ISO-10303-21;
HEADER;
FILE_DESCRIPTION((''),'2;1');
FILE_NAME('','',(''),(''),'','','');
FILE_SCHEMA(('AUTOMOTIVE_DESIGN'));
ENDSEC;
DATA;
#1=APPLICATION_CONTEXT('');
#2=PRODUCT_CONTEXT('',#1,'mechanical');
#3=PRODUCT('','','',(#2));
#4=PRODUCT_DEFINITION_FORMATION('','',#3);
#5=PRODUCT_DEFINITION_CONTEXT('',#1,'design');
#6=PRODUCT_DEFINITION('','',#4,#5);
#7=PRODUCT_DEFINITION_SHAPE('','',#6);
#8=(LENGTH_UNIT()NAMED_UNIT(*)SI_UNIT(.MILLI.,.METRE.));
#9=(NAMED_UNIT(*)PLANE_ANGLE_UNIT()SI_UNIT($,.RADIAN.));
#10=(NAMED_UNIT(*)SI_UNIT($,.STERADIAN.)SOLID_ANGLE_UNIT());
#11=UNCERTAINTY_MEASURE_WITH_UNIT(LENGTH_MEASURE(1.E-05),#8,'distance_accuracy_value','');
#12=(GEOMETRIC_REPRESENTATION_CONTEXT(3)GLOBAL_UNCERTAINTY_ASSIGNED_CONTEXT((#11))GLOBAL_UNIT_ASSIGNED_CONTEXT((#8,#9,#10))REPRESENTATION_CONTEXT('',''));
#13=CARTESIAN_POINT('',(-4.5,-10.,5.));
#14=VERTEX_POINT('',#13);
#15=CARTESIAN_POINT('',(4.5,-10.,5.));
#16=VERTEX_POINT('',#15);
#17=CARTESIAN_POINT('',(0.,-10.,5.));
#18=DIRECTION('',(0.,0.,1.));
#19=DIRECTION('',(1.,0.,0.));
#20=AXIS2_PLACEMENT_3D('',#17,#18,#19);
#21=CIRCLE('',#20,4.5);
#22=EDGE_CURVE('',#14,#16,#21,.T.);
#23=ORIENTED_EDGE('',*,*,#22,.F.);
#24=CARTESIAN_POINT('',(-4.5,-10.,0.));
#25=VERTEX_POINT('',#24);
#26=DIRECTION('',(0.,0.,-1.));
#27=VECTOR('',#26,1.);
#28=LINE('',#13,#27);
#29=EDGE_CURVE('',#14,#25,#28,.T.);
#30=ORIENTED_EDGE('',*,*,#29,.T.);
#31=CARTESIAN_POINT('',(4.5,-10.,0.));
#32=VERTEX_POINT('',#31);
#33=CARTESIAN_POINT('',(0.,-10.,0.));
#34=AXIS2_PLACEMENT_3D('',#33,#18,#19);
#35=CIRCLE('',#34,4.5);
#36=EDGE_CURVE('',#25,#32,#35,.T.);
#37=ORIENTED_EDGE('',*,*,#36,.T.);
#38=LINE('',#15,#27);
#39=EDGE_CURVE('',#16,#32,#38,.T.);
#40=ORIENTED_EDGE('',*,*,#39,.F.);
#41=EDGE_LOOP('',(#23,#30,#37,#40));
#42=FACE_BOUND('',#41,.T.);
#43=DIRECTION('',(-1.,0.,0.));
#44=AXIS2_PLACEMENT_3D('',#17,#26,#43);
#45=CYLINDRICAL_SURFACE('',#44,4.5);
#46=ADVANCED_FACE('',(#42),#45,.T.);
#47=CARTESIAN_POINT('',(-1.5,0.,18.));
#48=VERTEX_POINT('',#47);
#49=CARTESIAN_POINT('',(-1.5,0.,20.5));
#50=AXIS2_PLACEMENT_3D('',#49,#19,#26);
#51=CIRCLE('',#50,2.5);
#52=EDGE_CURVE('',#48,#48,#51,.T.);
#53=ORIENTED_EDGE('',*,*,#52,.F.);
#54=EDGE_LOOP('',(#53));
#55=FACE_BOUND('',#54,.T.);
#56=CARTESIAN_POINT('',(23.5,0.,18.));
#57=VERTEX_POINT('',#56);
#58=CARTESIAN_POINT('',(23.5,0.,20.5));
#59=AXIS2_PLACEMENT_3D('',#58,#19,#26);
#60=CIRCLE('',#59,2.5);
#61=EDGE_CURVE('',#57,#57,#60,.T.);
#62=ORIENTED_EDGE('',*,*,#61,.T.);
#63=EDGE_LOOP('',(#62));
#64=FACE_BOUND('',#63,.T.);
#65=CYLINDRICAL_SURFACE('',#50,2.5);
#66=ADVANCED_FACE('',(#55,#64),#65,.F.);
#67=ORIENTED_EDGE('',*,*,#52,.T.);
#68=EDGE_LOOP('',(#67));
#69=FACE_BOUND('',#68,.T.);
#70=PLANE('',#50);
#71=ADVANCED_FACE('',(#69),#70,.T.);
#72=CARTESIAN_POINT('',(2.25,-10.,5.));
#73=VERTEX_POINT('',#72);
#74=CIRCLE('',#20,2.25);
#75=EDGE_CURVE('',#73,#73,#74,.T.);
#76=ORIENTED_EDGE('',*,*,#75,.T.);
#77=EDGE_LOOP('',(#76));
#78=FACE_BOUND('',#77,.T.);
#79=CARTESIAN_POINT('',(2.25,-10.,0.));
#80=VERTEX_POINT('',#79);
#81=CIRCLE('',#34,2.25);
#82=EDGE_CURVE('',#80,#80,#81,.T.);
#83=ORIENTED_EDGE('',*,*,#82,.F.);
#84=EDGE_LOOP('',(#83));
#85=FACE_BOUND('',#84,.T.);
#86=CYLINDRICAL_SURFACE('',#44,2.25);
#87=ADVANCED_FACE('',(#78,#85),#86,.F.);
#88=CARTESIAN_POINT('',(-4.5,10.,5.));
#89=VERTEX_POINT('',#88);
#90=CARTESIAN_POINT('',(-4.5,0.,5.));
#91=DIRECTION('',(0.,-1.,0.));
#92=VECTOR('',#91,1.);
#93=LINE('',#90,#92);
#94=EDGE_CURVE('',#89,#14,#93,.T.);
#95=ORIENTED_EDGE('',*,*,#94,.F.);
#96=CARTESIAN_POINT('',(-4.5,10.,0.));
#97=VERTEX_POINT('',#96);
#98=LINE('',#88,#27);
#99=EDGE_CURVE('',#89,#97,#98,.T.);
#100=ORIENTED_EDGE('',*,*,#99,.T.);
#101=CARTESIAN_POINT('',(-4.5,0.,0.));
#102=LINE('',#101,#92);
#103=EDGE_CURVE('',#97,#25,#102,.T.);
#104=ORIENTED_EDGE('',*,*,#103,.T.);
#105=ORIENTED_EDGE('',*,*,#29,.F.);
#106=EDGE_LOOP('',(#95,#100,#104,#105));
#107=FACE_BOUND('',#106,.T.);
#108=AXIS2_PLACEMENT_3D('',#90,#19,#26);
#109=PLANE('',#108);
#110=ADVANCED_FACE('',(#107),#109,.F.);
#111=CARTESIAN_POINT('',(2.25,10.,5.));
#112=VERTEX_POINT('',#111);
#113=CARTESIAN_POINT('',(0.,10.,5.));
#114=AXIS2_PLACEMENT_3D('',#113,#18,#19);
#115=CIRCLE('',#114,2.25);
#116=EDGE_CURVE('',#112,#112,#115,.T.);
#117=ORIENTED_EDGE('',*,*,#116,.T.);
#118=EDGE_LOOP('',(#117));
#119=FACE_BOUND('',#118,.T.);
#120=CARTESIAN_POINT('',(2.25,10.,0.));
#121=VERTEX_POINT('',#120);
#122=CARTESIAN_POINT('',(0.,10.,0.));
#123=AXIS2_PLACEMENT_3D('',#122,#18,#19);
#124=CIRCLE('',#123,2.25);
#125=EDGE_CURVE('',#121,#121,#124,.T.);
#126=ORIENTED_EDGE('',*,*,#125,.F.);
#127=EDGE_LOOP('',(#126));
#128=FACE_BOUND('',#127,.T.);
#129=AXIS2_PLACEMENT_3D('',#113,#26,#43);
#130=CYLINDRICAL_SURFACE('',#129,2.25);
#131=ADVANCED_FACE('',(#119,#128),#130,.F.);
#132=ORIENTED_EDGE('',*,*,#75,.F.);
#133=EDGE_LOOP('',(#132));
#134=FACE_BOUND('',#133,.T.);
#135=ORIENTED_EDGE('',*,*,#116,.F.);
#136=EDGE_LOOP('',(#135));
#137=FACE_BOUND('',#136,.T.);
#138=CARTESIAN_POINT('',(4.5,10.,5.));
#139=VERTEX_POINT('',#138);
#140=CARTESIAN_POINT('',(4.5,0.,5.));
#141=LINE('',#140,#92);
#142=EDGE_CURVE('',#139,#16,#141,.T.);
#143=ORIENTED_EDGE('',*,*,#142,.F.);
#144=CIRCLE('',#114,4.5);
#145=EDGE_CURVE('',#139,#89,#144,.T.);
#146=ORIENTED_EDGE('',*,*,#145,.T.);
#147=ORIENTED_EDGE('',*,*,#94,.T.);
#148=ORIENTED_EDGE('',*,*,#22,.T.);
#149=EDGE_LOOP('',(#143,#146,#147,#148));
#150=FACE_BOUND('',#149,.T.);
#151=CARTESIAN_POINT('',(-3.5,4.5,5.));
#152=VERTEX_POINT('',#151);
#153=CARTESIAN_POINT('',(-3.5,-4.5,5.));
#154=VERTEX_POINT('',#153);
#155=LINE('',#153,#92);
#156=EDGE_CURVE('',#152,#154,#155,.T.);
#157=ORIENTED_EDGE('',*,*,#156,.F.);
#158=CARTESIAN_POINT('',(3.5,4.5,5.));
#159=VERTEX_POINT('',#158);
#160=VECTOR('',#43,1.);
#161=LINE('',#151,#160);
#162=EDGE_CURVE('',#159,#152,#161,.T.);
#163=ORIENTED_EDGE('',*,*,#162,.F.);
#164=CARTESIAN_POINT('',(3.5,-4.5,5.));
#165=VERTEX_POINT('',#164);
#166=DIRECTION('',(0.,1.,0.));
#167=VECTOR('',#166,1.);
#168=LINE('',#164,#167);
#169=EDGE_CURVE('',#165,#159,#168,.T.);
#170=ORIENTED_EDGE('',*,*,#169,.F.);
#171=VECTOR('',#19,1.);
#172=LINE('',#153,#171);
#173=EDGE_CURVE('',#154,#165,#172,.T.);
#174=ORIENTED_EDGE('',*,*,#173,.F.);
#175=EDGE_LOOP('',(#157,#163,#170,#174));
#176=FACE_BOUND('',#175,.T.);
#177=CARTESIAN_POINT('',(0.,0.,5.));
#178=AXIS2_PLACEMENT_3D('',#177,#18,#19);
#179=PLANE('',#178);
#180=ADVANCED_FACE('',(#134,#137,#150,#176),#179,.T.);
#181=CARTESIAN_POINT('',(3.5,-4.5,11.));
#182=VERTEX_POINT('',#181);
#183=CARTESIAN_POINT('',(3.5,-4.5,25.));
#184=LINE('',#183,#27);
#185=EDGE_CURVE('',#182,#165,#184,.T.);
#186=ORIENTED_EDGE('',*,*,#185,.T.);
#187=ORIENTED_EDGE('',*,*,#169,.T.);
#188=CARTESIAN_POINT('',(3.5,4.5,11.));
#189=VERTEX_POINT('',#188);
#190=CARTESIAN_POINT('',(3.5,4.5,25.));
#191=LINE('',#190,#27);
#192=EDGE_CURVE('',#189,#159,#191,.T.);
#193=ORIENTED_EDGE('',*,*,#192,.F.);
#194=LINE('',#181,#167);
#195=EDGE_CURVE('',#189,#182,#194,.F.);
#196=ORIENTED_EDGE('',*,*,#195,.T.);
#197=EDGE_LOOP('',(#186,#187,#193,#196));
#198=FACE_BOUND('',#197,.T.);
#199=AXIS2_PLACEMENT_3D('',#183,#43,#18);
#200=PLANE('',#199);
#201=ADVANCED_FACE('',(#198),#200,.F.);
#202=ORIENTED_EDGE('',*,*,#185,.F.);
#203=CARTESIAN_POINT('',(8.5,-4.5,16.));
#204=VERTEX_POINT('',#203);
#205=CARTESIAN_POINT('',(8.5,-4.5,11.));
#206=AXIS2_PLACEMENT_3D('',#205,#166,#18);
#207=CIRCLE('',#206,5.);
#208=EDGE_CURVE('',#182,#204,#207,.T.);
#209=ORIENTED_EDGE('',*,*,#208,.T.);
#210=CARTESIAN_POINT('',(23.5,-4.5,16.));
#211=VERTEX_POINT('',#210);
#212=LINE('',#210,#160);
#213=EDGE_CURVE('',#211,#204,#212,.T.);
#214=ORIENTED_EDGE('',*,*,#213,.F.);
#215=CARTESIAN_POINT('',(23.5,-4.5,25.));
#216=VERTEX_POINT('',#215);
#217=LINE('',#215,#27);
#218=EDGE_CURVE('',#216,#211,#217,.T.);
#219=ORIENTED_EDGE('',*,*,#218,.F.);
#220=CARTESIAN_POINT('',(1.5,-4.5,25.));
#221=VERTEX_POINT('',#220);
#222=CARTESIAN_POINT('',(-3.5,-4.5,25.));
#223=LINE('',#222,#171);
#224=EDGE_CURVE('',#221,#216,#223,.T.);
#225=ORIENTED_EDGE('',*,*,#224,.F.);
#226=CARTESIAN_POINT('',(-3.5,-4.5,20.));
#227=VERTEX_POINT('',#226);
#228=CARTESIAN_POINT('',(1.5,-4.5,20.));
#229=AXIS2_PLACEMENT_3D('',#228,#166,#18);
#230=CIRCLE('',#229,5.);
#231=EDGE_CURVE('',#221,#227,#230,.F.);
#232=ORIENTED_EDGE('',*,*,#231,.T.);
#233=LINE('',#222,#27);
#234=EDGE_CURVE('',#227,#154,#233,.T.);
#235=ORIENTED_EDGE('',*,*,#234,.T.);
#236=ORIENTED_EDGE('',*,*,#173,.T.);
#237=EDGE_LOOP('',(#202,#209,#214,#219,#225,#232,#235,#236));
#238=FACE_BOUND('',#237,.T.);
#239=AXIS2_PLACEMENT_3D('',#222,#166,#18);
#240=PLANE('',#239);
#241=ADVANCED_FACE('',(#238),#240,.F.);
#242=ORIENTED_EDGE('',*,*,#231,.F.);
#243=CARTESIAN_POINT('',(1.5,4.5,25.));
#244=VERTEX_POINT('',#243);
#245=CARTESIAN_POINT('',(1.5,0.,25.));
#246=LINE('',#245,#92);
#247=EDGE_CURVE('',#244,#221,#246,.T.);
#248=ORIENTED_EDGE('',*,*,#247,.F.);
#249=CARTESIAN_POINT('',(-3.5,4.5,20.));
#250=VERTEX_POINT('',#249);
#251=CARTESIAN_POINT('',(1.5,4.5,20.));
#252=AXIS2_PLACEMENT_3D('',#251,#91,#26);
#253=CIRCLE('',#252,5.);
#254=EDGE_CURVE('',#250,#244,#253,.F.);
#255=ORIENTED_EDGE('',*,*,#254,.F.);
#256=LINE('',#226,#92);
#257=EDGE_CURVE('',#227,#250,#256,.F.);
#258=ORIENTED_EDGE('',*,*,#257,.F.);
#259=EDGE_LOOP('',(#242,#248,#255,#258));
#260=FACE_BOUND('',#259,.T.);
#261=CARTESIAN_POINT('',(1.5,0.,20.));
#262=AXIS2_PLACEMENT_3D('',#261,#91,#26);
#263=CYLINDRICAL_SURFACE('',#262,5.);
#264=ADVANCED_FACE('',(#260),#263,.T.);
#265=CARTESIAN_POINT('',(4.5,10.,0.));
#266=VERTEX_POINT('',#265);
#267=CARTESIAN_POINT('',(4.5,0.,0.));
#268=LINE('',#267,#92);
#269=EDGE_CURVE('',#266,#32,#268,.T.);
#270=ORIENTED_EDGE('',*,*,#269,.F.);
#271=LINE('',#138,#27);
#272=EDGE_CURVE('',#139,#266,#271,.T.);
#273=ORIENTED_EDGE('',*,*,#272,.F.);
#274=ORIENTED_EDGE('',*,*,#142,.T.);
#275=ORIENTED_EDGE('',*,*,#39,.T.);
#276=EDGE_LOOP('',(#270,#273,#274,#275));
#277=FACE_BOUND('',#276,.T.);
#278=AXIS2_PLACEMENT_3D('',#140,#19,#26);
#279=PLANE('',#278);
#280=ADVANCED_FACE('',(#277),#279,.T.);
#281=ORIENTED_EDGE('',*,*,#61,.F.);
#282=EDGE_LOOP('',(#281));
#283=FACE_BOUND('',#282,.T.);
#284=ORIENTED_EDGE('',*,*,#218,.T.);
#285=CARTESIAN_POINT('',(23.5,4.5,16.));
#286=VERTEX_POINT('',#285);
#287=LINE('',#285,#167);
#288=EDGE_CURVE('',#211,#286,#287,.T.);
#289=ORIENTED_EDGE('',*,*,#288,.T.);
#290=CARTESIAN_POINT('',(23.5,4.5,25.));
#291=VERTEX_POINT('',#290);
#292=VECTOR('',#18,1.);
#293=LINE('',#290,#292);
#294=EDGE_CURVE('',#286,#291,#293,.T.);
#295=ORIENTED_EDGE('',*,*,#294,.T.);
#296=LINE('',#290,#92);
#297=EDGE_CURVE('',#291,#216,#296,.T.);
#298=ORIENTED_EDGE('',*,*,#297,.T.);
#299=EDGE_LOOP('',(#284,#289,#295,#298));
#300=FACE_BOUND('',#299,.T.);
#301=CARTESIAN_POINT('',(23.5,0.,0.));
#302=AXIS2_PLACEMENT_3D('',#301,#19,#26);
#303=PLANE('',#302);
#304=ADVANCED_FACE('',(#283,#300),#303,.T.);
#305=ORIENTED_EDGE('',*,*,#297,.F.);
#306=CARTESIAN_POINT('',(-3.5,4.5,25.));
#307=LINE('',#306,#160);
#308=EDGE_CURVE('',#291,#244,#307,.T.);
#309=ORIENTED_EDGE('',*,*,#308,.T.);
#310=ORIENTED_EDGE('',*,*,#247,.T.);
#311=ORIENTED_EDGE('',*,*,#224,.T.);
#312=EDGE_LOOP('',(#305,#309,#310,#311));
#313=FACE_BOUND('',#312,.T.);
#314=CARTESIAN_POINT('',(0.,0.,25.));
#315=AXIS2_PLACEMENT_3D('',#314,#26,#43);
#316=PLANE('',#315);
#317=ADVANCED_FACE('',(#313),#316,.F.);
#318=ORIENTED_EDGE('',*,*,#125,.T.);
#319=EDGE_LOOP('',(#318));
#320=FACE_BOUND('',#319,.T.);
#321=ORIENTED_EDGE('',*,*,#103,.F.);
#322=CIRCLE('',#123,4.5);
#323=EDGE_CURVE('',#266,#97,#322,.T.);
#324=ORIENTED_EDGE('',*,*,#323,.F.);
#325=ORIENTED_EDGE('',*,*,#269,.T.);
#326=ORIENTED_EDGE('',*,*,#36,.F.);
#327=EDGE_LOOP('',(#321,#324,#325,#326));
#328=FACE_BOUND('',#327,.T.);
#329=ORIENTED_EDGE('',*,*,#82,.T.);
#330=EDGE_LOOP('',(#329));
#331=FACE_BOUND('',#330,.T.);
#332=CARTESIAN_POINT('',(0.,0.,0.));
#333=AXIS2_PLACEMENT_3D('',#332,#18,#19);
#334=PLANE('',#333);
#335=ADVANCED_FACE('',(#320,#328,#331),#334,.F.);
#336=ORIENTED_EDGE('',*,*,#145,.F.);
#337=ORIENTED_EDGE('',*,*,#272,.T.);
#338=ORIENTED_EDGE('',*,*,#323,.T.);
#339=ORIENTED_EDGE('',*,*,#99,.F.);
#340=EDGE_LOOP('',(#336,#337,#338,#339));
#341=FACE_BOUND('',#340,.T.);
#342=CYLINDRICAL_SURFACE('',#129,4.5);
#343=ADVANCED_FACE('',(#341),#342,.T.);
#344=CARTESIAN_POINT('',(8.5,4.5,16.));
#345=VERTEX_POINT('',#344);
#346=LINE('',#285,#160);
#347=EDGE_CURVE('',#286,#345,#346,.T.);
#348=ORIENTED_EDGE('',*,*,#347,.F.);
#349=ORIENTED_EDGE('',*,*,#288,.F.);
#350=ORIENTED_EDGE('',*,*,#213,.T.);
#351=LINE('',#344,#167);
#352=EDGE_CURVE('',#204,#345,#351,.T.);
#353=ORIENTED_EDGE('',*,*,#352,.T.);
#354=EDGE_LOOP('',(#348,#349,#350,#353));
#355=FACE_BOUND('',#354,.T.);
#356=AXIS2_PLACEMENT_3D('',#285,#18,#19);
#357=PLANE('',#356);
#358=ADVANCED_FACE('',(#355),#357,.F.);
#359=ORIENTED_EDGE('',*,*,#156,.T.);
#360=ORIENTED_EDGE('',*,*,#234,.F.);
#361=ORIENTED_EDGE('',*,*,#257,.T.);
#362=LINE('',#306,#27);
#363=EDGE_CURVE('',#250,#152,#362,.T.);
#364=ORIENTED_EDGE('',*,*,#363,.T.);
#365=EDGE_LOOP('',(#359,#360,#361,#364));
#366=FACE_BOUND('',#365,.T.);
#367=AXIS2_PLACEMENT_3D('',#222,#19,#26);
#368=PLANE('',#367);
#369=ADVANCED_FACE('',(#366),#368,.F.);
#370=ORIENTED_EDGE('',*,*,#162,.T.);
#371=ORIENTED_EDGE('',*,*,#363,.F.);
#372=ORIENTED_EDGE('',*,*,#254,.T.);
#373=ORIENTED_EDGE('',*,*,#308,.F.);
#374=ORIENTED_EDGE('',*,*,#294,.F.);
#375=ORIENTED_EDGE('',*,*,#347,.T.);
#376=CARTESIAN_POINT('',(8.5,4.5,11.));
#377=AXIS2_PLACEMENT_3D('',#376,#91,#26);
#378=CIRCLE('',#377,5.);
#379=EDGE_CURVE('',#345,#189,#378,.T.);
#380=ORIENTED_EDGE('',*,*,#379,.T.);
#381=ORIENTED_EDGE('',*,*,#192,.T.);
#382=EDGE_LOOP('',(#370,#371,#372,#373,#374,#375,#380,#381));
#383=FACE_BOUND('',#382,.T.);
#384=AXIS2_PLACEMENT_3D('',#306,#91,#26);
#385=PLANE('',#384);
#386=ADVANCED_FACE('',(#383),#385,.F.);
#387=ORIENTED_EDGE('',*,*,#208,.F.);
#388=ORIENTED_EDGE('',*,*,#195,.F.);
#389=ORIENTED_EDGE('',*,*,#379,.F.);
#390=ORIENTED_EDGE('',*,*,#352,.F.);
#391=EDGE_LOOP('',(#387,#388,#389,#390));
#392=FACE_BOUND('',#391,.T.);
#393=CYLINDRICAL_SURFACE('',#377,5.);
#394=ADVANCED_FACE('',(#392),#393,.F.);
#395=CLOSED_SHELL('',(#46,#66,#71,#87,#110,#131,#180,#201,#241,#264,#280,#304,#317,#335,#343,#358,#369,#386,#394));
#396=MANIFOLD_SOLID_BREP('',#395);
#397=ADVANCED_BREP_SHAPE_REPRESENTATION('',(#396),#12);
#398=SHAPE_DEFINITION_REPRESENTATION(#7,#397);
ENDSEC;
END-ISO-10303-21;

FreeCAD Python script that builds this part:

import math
import FreeCAD as App
import Part
import Sketcher
Q = App.Units.Quantity


def edges_at(feature, points):
    """Names of the edges that pass closest to the given points."""
    edges = feature.Shape.Edges
    near = lambda p: min(range(len(edges)), key=lambda i: edges[i].distToShape(Part.Vertex(*p))[0])
    return sorted({f"Edge{near(p) + 1}" for p in points})

doc = App.newDocument("Part")
body = doc.addObject("PartDesign::Body", "Body")

sketch1 = doc.addObject("Sketcher::SketchObject", "Sketch")
body.addObject(sketch1)
sketch1.AttachmentSupport = (doc.XY_Plane, [""])
sketch1.MapMode = "FlatFace"
sketch1.addGeometry(Part.ArcOfCircle(Part.Circle(App.Vector(0, 10, 0), App.Vector(0, 0, 1), 4.5), math.radians(0), math.radians(180)), False)
sketch1.addGeometry(Part.LineSegment(App.Vector(-4.5, 10, 0), App.Vector(-4.5, -10, 0)), False)
sketch1.addGeometry(Part.ArcOfCircle(Part.Circle(App.Vector(0, -10, 0), App.Vector(0, 0, 1), 4.5), math.radians(180), math.radians(360)), False)
sketch1.addGeometry(Part.LineSegment(App.Vector(4.5, -10, 0), App.Vector(4.5, 10, 0)), False)
sketch1.addGeometry(Part.Circle(App.Vector(0, -10, 0), App.Vector(0, 0, 1), 2.25), False)
sketch1.addGeometry(Part.Circle(App.Vector(0, 10, 0), App.Vector(0, 0, 1), 2.25), False)
sketch1.addConstraint(Sketcher.Constraint("Tangent", 0, 2, 1, 1))
sketch1.addConstraint(Sketcher.Constraint("Tangent", 1, 2, 2, 1))
sketch1.addConstraint(Sketcher.Constraint("Tangent", 2, 2, 3, 1))
sketch1.addConstraint(Sketcher.Constraint("Tangent", 3, 2, 0, 1))
sketch1.addConstraint(Sketcher.Constraint("Vertical", 1))
sketch1.addConstraint(Sketcher.Constraint("Vertical", 3))
sketch1.addConstraint(Sketcher.Constraint("Coincident", 4, 3, 2, 3))
sketch1.addConstraint(Sketcher.Constraint("Coincident", 5, 3, 0, 3))
sketch1.addConstraint(Sketcher.Constraint("Equal", 4, 5))
sketch1.addConstraint(Sketcher.Constraint("Symmetric", 0, 3, 2, 3, -1, 1))
sketch1.addConstraint(Sketcher.Constraint("Diameter", 4, Q("4.5 mm")))
sketch1.addConstraint(Sketcher.Constraint("Radius", 0, Q("4.5 mm")))
sketch1.addConstraint(Sketcher.Constraint("DistanceY", 1, 2, 1, 1, Q("20 mm")))
pad1 = doc.addObject("PartDesign::Pad", "Pad")
body.addObject(pad1)
pad1.Profile = sketch1
pad1.Length = 5

sketch2 = doc.addObject("Sketcher::SketchObject", "Sketch001")
body.addObject(sketch2)
sketch2.AttachmentSupport = (doc.XY_Plane, [""])
sketch2.MapMode = "FlatFace"
sketch2.AttachmentOffset = App.Placement(App.Vector(0, 0, 5), App.Rotation())
sketch2.addGeometry(Part.LineSegment(App.Vector(-3.5, 4.5, 0), App.Vector(-3.5, -4.5, 0)), False)
sketch2.addGeometry(Part.LineSegment(App.Vector(-3.5, -4.5, 0), App.Vector(3.5, -4.5, 0)), False)
sketch2.addGeometry(Part.LineSegment(App.Vector(3.5, -4.5, 0), App.Vector(3.5, 4.5, 0)), False)
sketch2.addGeometry(Part.LineSegment(App.Vector(3.5, 4.5, 0), App.Vector(-3.5, 4.5, 0)), False)
sketch2.addConstraint(Sketcher.Constraint("Coincident", 0, 2, 1, 1))
sketch2.addConstraint(Sketcher.Constraint("Coincident", 1, 2, 2, 1))
sketch2.addConstraint(Sketcher.Constraint("Coincident", 2, 2, 3, 1))
sketch2.addConstraint(Sketcher.Constraint("Coincident", 3, 2, 0, 1))
sketch2.addConstraint(Sketcher.Constraint("Vertical", 0))
sketch2.addConstraint(Sketcher.Constraint("Horizontal", 1))
sketch2.addConstraint(Sketcher.Constraint("Vertical", 2))
sketch2.addConstraint(Sketcher.Constraint("Horizontal", 3))
sketch2.addConstraint(Sketcher.Constraint("Symmetric", 0, 2, 2, 2, -1, 1))
sketch2.addConstraint(Sketcher.Constraint("DistanceX", 1, 1, 1, 2, Q("7 mm")))
sketch2.addConstraint(Sketcher.Constraint("DistanceY", 0, 2, 0, 1, Q("9 mm")))
pad2 = doc.addObject("PartDesign::Pad", "Pad001")
body.addObject(pad2)
pad2.Profile = sketch2
pad2.Length = 20

sketch3 = doc.addObject("Sketcher::SketchObject", "Sketch002")
body.addObject(sketch3)
sketch3.AttachmentSupport = (doc.YZ_Plane, [""])
sketch3.MapMode = "FlatFace"
sketch3.AttachmentOffset = App.Placement(App.Vector(0, 0, 3.5), App.Rotation())
sketch3.addGeometry(Part.LineSegment(App.Vector(4.5, 25, 0), App.Vector(-4.5, 25, 0)), False)
sketch3.addGeometry(Part.LineSegment(App.Vector(-4.5, 25, 0), App.Vector(-4.5, 16, 0)), False)
sketch3.addGeometry(Part.LineSegment(App.Vector(-4.5, 16, 0), App.Vector(4.5, 16, 0)), False)
sketch3.addGeometry(Part.LineSegment(App.Vector(4.5, 16, 0), App.Vector(4.5, 25, 0)), False)
sketch3.addConstraint(Sketcher.Constraint("Coincident", 0, 2, 1, 1))
sketch3.addConstraint(Sketcher.Constraint("Coincident", 1, 2, 2, 1))
sketch3.addConstraint(Sketcher.Constraint("Coincident", 2, 2, 3, 1))
sketch3.addConstraint(Sketcher.Constraint("Coincident", 3, 2, 0, 1))
sketch3.addConstraint(Sketcher.Constraint("Horizontal", 0))
sketch3.addConstraint(Sketcher.Constraint("Vertical", 1))
sketch3.addConstraint(Sketcher.Constraint("Horizontal", 2))
sketch3.addConstraint(Sketcher.Constraint("Vertical", 3))
sketch3.addConstraint(Sketcher.Constraint("Equal", 2, 1))
sketch3.addConstraint(Sketcher.Constraint("DistanceX", 0, 2, 0, 1, Q("9 mm")))
sketch3.addConstraint(Sketcher.Constraint("DistanceY", -1, 1, 0, 2, Q("25 mm")))
sketch3.addConstraint(Sketcher.Constraint("DistanceX", 0, 2, -1, 1, Q("4.5 mm")))
pad3 = doc.addObject("PartDesign::Pad", "Pad002")
body.addObject(pad3)
pad3.Profile = sketch3
pad3.Length = 20

sketch4 = doc.addObject("Sketcher::SketchObject", "Sketch003")
body.addObject(sketch4)
sketch4.AttachmentSupport = (doc.YZ_Plane, [""])
sketch4.MapMode = "FlatFace"
sketch4.AttachmentOffset = App.Placement(App.Vector(0, 0, 23.5), App.Rotation())
sketch4.addGeometry(Part.Circle(App.Vector(0, 20.5, 0), App.Vector(0, 0, 1), 2.5), False)
sketch4.addConstraint(Sketcher.Constraint("PointOnObject", 0, 3, -2))
sketch4.addConstraint(Sketcher.Constraint("Diameter", 0, Q("5 mm")))
sketch4.addConstraint(Sketcher.Constraint("DistanceY", -1, 1, 0, 3, Q("20.5 mm")))
pocket1 = doc.addObject("PartDesign::Pocket", "Pocket")
body.addObject(pocket1)
pocket1.Profile = sketch4
pocket1.Length = 25
doc.recompute()

fillet = doc.addObject("PartDesign::Fillet", "Fillet")
body.addObject(fillet)
fillet.Base = (pocket1, edges_at(pocket1, [(3.5, 0, 16)]))
fillet.Radius = 5
doc.recompute()

fillet2 = doc.addObject("PartDesign::Fillet", "Fillet001")
body.addObject(fillet2)
fillet2.Base = (fillet, edges_at(fillet, [(-3.5, 0, 25)]))
fillet2.Radius = 5

doc.recompute()
